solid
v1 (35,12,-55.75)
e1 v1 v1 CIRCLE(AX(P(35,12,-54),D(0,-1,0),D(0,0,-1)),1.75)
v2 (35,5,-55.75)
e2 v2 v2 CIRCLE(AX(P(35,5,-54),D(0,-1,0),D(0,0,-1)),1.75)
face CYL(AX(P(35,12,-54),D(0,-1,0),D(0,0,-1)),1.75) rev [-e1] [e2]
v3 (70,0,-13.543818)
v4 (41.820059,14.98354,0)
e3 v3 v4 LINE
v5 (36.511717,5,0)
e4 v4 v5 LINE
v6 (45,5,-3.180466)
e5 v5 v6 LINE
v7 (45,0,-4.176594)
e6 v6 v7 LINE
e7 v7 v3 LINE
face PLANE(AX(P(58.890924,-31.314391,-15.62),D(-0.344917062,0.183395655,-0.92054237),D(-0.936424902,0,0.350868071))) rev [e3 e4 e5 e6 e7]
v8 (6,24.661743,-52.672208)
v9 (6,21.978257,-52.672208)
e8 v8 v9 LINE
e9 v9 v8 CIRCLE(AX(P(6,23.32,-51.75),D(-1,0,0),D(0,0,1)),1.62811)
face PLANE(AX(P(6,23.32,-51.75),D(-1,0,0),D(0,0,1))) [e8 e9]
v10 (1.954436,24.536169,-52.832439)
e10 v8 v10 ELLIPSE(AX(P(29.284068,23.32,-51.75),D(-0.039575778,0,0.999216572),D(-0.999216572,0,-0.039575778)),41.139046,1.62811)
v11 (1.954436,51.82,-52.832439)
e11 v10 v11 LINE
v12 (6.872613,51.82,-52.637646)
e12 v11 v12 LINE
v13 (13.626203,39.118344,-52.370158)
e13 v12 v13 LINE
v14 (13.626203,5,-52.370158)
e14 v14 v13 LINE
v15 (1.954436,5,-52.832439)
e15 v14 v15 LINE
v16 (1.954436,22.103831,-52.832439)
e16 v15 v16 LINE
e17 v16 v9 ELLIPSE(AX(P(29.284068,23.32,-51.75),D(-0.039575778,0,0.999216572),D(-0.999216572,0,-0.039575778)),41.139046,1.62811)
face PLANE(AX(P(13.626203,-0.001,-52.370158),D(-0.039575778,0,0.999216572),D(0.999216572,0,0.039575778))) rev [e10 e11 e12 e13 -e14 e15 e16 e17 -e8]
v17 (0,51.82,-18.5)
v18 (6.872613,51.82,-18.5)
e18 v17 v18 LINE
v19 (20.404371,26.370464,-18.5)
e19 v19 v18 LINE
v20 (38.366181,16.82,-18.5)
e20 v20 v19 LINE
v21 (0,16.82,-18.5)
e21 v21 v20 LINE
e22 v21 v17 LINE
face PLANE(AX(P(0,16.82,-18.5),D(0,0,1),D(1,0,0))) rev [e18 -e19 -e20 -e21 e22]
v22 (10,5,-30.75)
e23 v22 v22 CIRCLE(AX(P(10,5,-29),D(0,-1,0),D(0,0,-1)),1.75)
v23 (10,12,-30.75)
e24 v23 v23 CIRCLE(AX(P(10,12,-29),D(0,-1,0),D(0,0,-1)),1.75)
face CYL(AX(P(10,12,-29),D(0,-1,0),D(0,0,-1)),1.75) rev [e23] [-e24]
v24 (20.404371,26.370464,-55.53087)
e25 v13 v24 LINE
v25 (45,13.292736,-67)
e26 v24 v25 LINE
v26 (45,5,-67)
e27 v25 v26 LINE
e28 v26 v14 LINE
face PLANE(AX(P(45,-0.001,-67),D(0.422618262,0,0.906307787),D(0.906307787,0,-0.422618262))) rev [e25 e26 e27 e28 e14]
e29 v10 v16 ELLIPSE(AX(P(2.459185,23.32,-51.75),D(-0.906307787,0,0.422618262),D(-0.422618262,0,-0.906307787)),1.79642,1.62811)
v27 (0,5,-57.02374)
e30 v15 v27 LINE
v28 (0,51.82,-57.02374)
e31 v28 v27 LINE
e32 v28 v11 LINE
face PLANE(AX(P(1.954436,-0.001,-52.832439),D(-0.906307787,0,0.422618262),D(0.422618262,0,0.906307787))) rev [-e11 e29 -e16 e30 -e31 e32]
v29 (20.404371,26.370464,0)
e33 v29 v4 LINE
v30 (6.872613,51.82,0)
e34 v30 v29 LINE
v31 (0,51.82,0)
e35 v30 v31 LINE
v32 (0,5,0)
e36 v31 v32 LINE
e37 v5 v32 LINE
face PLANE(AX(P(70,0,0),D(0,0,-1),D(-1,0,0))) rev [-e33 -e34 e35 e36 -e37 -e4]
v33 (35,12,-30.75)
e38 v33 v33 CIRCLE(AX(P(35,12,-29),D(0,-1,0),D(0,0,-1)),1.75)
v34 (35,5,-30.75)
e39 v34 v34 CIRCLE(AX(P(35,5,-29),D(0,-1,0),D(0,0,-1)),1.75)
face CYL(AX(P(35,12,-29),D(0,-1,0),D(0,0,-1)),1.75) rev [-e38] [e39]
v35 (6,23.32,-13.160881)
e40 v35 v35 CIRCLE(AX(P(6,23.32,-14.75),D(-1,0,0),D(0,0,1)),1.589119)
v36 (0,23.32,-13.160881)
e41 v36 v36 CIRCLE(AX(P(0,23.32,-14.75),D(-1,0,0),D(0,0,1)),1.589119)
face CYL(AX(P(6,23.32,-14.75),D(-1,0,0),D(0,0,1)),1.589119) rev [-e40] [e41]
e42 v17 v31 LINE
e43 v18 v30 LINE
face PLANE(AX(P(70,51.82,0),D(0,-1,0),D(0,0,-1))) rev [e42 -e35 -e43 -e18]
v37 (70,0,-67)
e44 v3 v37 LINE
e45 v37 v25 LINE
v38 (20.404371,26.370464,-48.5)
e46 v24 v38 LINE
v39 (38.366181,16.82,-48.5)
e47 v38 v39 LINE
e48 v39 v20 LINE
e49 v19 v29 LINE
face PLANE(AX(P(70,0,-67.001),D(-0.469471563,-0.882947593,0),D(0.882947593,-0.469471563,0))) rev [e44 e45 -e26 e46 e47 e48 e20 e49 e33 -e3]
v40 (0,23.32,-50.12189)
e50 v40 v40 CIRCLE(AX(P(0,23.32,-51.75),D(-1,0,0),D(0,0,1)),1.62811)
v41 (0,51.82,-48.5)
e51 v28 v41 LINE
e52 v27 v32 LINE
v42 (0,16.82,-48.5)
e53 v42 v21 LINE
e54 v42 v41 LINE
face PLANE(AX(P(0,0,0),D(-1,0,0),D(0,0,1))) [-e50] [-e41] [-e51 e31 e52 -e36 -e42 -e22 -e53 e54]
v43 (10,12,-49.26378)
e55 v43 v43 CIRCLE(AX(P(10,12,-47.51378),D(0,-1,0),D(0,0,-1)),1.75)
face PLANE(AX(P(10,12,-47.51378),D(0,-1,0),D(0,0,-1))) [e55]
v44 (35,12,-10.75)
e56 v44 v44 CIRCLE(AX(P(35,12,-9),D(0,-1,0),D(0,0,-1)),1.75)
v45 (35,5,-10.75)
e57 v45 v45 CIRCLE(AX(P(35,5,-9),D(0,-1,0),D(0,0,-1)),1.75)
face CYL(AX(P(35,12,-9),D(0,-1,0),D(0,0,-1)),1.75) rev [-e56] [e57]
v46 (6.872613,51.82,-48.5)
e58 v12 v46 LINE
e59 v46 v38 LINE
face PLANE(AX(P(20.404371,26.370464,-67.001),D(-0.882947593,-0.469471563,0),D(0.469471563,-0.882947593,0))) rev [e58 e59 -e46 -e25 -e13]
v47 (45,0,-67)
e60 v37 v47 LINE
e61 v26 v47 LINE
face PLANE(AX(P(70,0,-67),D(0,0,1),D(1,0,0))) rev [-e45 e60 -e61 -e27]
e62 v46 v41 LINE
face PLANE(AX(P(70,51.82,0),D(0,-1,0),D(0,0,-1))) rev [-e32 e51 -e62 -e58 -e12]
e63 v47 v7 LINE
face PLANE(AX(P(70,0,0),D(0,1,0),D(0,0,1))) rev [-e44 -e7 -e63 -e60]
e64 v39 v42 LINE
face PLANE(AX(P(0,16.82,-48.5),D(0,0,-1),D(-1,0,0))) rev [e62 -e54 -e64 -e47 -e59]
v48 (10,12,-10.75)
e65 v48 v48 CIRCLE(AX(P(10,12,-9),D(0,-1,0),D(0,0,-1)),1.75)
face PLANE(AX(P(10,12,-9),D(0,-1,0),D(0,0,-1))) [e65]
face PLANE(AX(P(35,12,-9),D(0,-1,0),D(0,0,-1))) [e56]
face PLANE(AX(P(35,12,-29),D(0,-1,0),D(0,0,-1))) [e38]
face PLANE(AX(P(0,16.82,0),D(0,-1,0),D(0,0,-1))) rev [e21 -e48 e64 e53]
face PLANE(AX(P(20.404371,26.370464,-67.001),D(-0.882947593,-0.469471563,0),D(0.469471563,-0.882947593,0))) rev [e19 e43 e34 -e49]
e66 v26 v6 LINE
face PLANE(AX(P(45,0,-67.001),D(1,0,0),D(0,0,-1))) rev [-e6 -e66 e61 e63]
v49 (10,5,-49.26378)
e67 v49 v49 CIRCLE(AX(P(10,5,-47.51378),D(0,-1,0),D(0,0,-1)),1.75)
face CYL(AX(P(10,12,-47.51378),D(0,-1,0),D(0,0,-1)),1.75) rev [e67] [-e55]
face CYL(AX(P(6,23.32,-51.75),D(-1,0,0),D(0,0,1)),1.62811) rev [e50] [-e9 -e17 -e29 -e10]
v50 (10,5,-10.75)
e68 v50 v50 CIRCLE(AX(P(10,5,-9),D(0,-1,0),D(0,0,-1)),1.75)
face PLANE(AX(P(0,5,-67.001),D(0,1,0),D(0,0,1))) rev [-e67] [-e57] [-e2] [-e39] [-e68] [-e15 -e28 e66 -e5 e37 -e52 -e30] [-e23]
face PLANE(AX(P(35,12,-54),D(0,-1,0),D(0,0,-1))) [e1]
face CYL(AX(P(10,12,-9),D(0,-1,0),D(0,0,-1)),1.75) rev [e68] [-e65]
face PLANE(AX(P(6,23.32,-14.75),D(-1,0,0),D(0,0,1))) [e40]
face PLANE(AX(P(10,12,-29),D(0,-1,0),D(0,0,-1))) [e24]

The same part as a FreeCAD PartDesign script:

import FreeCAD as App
import Part
import Sketcher
from FreeCAD import Vector
Q = App.Units.Quantity

doc = App.newDocument("Part")
params = doc.addObject("Spreadsheet::Sheet", "Params")
for row, (alias, value) in enumerate([
    ("sketch1_height", "67 mm"),
    ("sketch1_width", "51.82 mm"),
    ("pad1_length", "70 mm"),
    ("sketch2_height", "51.82 mm"),
    ("sketch3_width", "60 mm"),
    ("sketch3_height", "30 mm"),
    ("pocket2_length", "35 mm"),
    ("sketch4_width", "45 mm"),
    ("sketch4_height", "5 mm"),
    ("pocket5_length", "46.82 mm"),
    ("pocket6_length", "6 mm"),
    ("sketch8_diameter", "3.5 mm"),
    ("pocket7_length", "7 mm"),
    ("sketch9_width", "40.72 mm"),
    ("sketch9_height", "17.28 mm"),
    ("pocket8_length", "11.736789 mm"),
], start=1):
    params.set(f"A{row}", alias)
    params.set(f"B{row}", "=" + value)
    params.setAlias(f"B{row}", alias)

body = doc.addObject("PartDesign::Body", "Body")

sketch1 = body.newObject("Sketcher::SketchObject", "Sketch")
sketch1.AttachmentSupport = (doc.getObject("YZ_Plane"), [""])
sketch1.MapMode = "FlatFace"
sketch1.addGeometry([
    Part.LineSegment(Vector(52, 0, 0), Vector(0, 0, 0)),
    Part.LineSegment(Vector(0, 0, 0), Vector(0, -67, 0)),
    Part.LineSegment(Vector(0, -67, 0), Vector(52, -67, 0)),
    Part.LineSegment(Vector(52, -67, 0), Vector(52, 0, 0)),
], False)
sketch1.addConstraint([
    Sketcher.Constraint("Coincident", 0, 2, 1, 1),
    Sketcher.Constraint("Coincident", 1, 2, 2, 1),
    Sketcher.Constraint("Coincident", 2, 2, 3, 1),
    Sketcher.Constraint("Coincident", 3, 2, 0, 1),
    Sketcher.Constraint("Horizontal", 0),
    Sketcher.Constraint("Vertical", 1),
    Sketcher.Constraint("Horizontal", 2),
    Sketcher.Constraint("Vertical", 3),
    Sketcher.Constraint("Coincident", 0, 2, -1, 1),
    Sketcher.Constraint("DistanceY", 1, 2, 1, 1, Q("67 mm")),
    Sketcher.Constraint("DistanceX", 0, 2, 0, 1, Q("51.82 mm")),
])
sketch1.setExpression("Constraints[9]", "Params.sketch1_height")
sketch1.setExpression("Constraints[10]", "Params.sketch1_width")
pad1 = body.newObject("PartDesign::Pad", "Pad")
pad1.Profile = sketch1
pad1.setExpression("Length", "Params.pad1_length")

sketch2 = body.newObject("Sketcher::SketchObject", "Sketch001")
sketch2.AttachmentSupport = (doc.getObject("XY_Plane"), [""])
sketch2.MapMode = "FlatFace"
sketch2.addGeometry([
    Part.LineSegment(Vector(20, 26, 0), Vector(70, 0, 0)),
    Part.LineSegment(Vector(70, 0, 0), Vector(70, 52, 0)),
    Part.LineSegment(Vector(70, 52, 0), Vector(7, 52, 0)),
    Part.LineSegment(Vector(7, 52, 0), Vector(20, 26, 0)),
], False)
sketch2.addConstraint([
    Sketcher.Constraint("Coincident", 0, 2, 1, 1),
    Sketcher.Constraint("Coincident", 1, 2, 2, 1),
    Sketcher.Constraint("Coincident", 2, 2, 3, 1),
    Sketcher.Constraint("Coincident", 3, 2, 0, 1),
    Sketcher.Constraint("Vertical", 1),
    Sketcher.Constraint("Horizontal", 2),
    Sketcher.Constraint("PointOnObject", 0, 2, -1),
    Sketcher.Constraint("Angle", 0, Q("-28 deg")),
    Sketcher.Constraint("Angle", 3, Q("-62 deg")),
    Sketcher.Constraint("DistanceX", -1, 1, 0, 2, Q("70 mm")),
    Sketcher.Constraint("DistanceY", 1, 1, 1, 2, Q("51.82 mm")),
    Sketcher.Constraint("DistanceX", 2, 2, 2, 1, Q("63.127387 mm")),
])
sketch2.setExpression("Constraints[10]", "Params.sketch2_height")
pocket1 = body.newObject("PartDesign::Pocket", "Pocket")
pocket1.Profile = sketch2
pocket1.Type = "UpToFirst"

sketch3 = body.newObject("Sketcher::SketchObject", "Sketch002")
sketch3.AttachmentSupport = (doc.getObject("XZ_Plane"), [""])
sketch3.MapMode = "FlatFace"
sketch3.AttachmentOffset = App.Placement(Vector(0, 0, -51.82), App.Rotation())
sketch3.addGeometry([
    Part.LineSegment(Vector(0, -48, 0), Vector(0, -18, 0)),
    Part.LineSegment(Vector(0, -18, 0), Vector(60, -18, 0)),
    Part.LineSegment(Vector(60, -18, 0), Vector(60, -48, 0)),
    Part.LineSegment(Vector(60, -48, 0), Vector(0, -48, 0)),
], False)
sketch3.addConstraint([
    Sketcher.Constraint("Coincident", 0, 2, 1, 1),
    Sketcher.Constraint("Coincident", 1, 2, 2, 1),
    Sketcher.Constraint("Coincident", 2, 2, 3, 1),
    Sketcher.Constraint("Coincident", 3, 2, 0, 1),
    Sketcher.Constraint("Vertical", 0),
    Sketcher.Constraint("Horizontal", 1),
    Sketcher.Constraint("Vertical", 2),
    Sketcher.Constraint("Horizontal", 3),
    Sketcher.Constraint("PointOnObject", 0, 2, -2),
    Sketcher.Constraint("DistanceX", 1, 1, 1, 2, Q("60 mm")),
    Sketcher.Constraint("DistanceY", 0, 1, 0, 2, Q("30 mm")),
    Sketcher.Constraint("DistanceY", 0, 2, -1, 1, Q("18.5 mm")),
])
sketch3.setExpression("Constraints[9]", "Params.sketch3_width")
sketch3.setExpression("Constraints[10]", "Params.sketch3_height")
pocket2 = body.newObject("PartDesign::Pocket", "Pocket001")
pocket2.Profile = sketch3
pocket2.setExpression("Length", "Params.pocket2_length")
pocket2.Reversed = True

sketch4 = body.newObject("Sketcher::SketchObject", "Sketch003")
sketch4.AttachmentSupport = (doc.getObject("XY_Plane"), [""])
sketch4.MapMode = "FlatFace"
sketch4.addGeometry([
    Part.LineSegment(Vector(0, 5, 0), Vector(0, 0, 0)),
    Part.LineSegment(Vector(0, 0, 0), Vector(45, 0, 0)),
    Part.LineSegment(Vector(45, 0, 0), Vector(45, 5, 0)),
    Part.LineSegment(Vector(45, 5, 0), Vector(0, 5, 0)),
], False)
sketch4.addConstraint([
    Sketcher.Constraint("Coincident", 0, 2, 1, 1),
    Sketcher.Constraint("Coincident", 1, 2, 2, 1),
    Sketcher.Constraint("Coincident", 2, 2, 3, 1),
    Sketcher.Constraint("Coincident", 3, 2, 0, 1),
    Sketcher.Constraint("Vertical", 0),
    Sketcher.Constraint("Horizontal", 1),
    Sketcher.Constraint("Vertical", 2),
    Sketcher.Constraint("Horizontal", 3),
    Sketcher.Constraint("Coincident", 0, 2, -1, 1),
    Sketcher.Constraint("DistanceX", 1, 1, 1, 2, Q("45 mm")),
    Sketcher.Constraint("DistanceY", 0, 2, 0, 1, Q("5 mm")),
])
sketch4.setExpression("Constraints[9]", "Params.sketch4_width")
sketch4.setExpression("Constraints[10]", "Params.sketch4_height")
pocket3 = body.newObject("PartDesign::Pocket", "Pocket002")
pocket3.Profile = sketch4
pocket3.Type = "UpToFirst"

sketch5 = body.newObject("Sketcher::SketchObject", "Sketch004")
sketch5.AttachmentSupport = (doc.getObject("XZ_Plane"), [""])
sketch5.MapMode = "FlatFace"
sketch5.AttachmentOffset = App.Placement(Vector(0, 0, -51.82), App.Rotation())
sketch5.addGeometry([
    Part.LineSegment(Vector(0, -64.3, 0), Vector(4.9, -67, 0)),
    Part.LineSegment(Vector(4.9, -67, 0), Vector(0, -67, 0)),
    Part.LineSegment(Vector(0, -67, 0), Vector(0, -64.3, 0)),
], False)
sketch5.addConstraint([
    Sketcher.Constraint("Coincident", 0, 2, 1, 1),
    Sketcher.Constraint("Coincident", 1, 2, 2, 1),
    Sketcher.Constraint("Coincident", 2, 2, 0, 1),
    Sketcher.Constraint("Horizontal", 1),
    Sketcher.Constraint("Vertical", 2),
    Sketcher.Constraint("PointOnObject", 1, 2, -2),
    Sketcher.Constraint("DistanceY", 0, 2, -1, 1, Q("67 mm")),
    Sketcher.Constraint("DistanceX", 1, 2, 1, 1, Q("4.922856 mm")),
    Sketcher.Constraint("DistanceY", 2, 1, 2, 2, Q("2.665345 mm")),
])
pocket4 = body.newObject("PartDesign::Pocket", "Pocket003")
pocket4.Profile = sketch5
pocket4.Type = "UpToFirst"
pocket4.Reversed = True

sketch6 = body.newObject("Sketcher::SketchObject", "Sketch005")
sketch6.AttachmentSupport = (doc.getObject("XZ_Plane"), [""])
sketch6.MapMode = "FlatFace"
sketch6.AttachmentOffset = App.Placement(Vector(0, 0, -51.82), App.Rotation())
sketch6.addGeometry([
    Part.LineSegment(Vector(14, -52, 0), Vector(45, -67, 0)),
    Part.LineSegment(Vector(45, -67, 0), Vector(-5, -67, 0)),
    Part.LineSegment(Vector(-5, -67, 0), Vector(2, -53, 0)),
    Part.LineSegment(Vector(2, -53, 0), Vector(14, -52, 0)),
], False)
sketch6.addConstraint([
    Sketcher.Constraint("Coincident", 0, 2, 1, 1),
    Sketcher.Constraint("Coincident", 1, 2, 2, 1),
    Sketcher.Constraint("Coincident", 2, 2, 3, 1),
    Sketcher.Constraint("Coincident", 3, 2, 0, 1),
    Sketcher.Constraint("Perpendicular", 0, 2),
    Sketcher.Constraint("Angle", 0, Q("-25 deg")),
    Sketcher.Constraint("DistanceX", -1, 1, 0, 2, Q("45 mm")),
    Sketcher.Constraint("DistanceY", 0, 2, -1, 1, Q("67 mm")),
    Sketcher.Constraint("Distance", 2, Q("15.648329 mm")),
    Sketcher.Constraint("Distance", 3, Q("11.680918 mm")),
    Sketcher.Constraint("DistanceY", 1, 2, -1, 1, Q("67.014642 mm")),
    Sketcher.Constraint("DistanceY", 3, 2, -1, 1, Q("52.370158 mm")),
])
pocket5 = body.newObject("PartDesign::Pocket", "Pocket004")
pocket5.Profile = sketch6
pocket5.setExpression("Length", "Params.pocket5_length")
pocket5.Reversed = True

sketch7 = body.newObject("Sketcher::SketchObject", "Sketch006")
sketch7.AttachmentSupport = (doc.getObject("YZ_Plane"), [""])
sketch7.MapMode = "FlatFace"
sketch7.addGeometry([
    Part.Circle(Vector(23.3, -14.8, 0), Vector(0, 0, 1), 1.6),
    Part.Circle(Vector(23.3, -51.8, 0), Vector(0, 0, 1), 1.6),
], False)
sketch7.addConstraint([
    Sketcher.Constraint("Vertical", 0, 3, 1, 3),
    Sketcher.Constraint("DistanceY", 1, 3, 0, 3, Q("37 mm")),
    Sketcher.Constraint("Diameter", 0, Q("3.178238 mm")),
    Sketcher.Constraint("Diameter", 1, Q("3.256219 mm")),
    Sketcher.Constraint("DistanceX", -1, 1, 0, 3, Q("23.32 mm")),
    Sketcher.Constraint("DistanceY", 0, 3, -1, 1, Q("14.75 mm")),
])
pocket6 = body.newObject("PartDesign::Pocket", "Pocket005")
pocket6.Profile = sketch7
pocket6.setExpression("Length", "Params.pocket6_length")
pocket6.Reversed = True

sketch8 = body.newObject("Sketcher::SketchObject", "Sketch007")
sketch8.AttachmentSupport = (doc.getObject("XZ_Plane"), [""])
sketch8.MapMode = "FlatFace"
sketch8.AttachmentOffset = App.Placement(Vector(0, 0, -5), App.Rotation())
sketch8.addGeometry([
    Part.Circle(Vector(10, -9, 0), Vector(0, 0, 1), 1.8),
    Part.Circle(Vector(35, -9, 0), Vector(0, 0, 1), 1.8),
    Part.Circle(Vector(10, -47.5, 0), Vector(0, 0, 1), 1.8),
    Part.Circle(Vector(35, -29, 0), Vector(0, 0, 1), 1.8),
    Part.Circle(Vector(10, -29, 0), Vector(0, 0, 1), 1.8),
    Part.Circle(Vector(35, -54, 0), Vector(0, 0, 1), 1.8),
], False)
sketch8.addConstraint([
    Sketcher.Constraint("Equal", 0, 1),
    Sketcher.Constraint("Equal", 1, 2),
    Sketcher.Constraint("Equal", 2, 3),
    Sketcher.Constraint("Equal", 3, 4),
    Sketcher.Constraint("Equal", 4, 5),
    Sketcher.Constraint("Horizontal", 0, 3, 1, 3),
    Sketcher.Constraint("Horizontal", 3, 3, 4, 3),
    Sketcher.Constraint("Vertical", 0, 3, 2, 3),
    Sketcher.Constraint("Vertical", 1, 3, 3, 3),
    Sketcher.Constraint("Vertical", 2, 3, 4, 3),
    Sketcher.Constraint("Vertical", 3, 3, 5, 3),
    Sketcher.Constraint("Diameter", 0, Q("3.5 mm")),
    Sketcher.Constraint("DistanceX", -1, 1, 0, 3, Q("10 mm")),
    Sketcher.Constraint("DistanceY", 0, 3, -1, 1, Q("9 mm")),
    Sketcher.Constraint("DistanceX", -1, 1, 1, 3, Q("35 mm")),
    Sketcher.Constraint("DistanceY", 3, 3, -1, 1, Q("29 mm")),
    Sketcher.Constraint("DistanceY", 5, 3, -1, 1, Q("54 mm")),
    Sketcher.Constraint("DistanceY", 2, 3, -1, 1, Q("47.51378 mm")),
])
sketch8.setExpression("Constraints[11]", "Params.sketch8_diameter")
pocket7 = body.newObject("PartDesign::Pocket", "Pocket006")
pocket7.Profile = sketch8
pocket7.setExpression("Length", "Params.pocket7_length")

sketch9 = body.newObject("Sketcher::SketchObject", "Sketch008")
sketch9.Placement = App.Placement(Vector(15.428248, 29.016315, 0), App.Rotation(Vector(0.882947593, -0.469471563, 0), Vector(0, 0, -1), Vector(0.469471563, 0.882947593, 0), "ZXY"))
sketch9.addGeometry([
    Part.LineSegment(Vector(26, -2, 0), Vector(67, -2, 0)),
    Part.LineSegment(Vector(67, -2, 0), Vector(67, 16, 0)),
    Part.LineSegment(Vector(67, 16, 0), Vector(26, -2, 0)),
], False)
sketch9.addConstraint([
    Sketcher.Constraint("Coincident", 0, 2, 1, 1),
    Sketcher.Constraint("Coincident", 1, 2, 2, 1),
    Sketcher.Constraint("Coincident", 2, 2, 0, 1),
    Sketcher.Constraint("Horizontal", 0),
    Sketcher.Constraint("Vertical", 1),
    Sketcher.Constraint("DistanceX", 0, 1, 0, 2, Q("40.72 mm")),
    Sketcher.Constraint("DistanceY", 1, 1, 1, 2, Q("17.28 mm")),
    Sketcher.Constraint("DistanceY", 0, 2, -1, 1, Q("1.66 mm")),
    Sketcher.Constraint("DistanceX", -1, 1, 0, 2, Q("66.698815 mm")),
])
sketch9.setExpression("Constraints[5]", "Params.sketch9_width")
sketch9.setExpression("Constraints[6]", "Params.sketch9_height")
pocket8 = body.newObject("PartDesign::Pocket", "Pocket007")
pocket8.Profile = sketch9
pocket8.setExpression("Length", "Params.pocket8_length")

doc.recompute()
